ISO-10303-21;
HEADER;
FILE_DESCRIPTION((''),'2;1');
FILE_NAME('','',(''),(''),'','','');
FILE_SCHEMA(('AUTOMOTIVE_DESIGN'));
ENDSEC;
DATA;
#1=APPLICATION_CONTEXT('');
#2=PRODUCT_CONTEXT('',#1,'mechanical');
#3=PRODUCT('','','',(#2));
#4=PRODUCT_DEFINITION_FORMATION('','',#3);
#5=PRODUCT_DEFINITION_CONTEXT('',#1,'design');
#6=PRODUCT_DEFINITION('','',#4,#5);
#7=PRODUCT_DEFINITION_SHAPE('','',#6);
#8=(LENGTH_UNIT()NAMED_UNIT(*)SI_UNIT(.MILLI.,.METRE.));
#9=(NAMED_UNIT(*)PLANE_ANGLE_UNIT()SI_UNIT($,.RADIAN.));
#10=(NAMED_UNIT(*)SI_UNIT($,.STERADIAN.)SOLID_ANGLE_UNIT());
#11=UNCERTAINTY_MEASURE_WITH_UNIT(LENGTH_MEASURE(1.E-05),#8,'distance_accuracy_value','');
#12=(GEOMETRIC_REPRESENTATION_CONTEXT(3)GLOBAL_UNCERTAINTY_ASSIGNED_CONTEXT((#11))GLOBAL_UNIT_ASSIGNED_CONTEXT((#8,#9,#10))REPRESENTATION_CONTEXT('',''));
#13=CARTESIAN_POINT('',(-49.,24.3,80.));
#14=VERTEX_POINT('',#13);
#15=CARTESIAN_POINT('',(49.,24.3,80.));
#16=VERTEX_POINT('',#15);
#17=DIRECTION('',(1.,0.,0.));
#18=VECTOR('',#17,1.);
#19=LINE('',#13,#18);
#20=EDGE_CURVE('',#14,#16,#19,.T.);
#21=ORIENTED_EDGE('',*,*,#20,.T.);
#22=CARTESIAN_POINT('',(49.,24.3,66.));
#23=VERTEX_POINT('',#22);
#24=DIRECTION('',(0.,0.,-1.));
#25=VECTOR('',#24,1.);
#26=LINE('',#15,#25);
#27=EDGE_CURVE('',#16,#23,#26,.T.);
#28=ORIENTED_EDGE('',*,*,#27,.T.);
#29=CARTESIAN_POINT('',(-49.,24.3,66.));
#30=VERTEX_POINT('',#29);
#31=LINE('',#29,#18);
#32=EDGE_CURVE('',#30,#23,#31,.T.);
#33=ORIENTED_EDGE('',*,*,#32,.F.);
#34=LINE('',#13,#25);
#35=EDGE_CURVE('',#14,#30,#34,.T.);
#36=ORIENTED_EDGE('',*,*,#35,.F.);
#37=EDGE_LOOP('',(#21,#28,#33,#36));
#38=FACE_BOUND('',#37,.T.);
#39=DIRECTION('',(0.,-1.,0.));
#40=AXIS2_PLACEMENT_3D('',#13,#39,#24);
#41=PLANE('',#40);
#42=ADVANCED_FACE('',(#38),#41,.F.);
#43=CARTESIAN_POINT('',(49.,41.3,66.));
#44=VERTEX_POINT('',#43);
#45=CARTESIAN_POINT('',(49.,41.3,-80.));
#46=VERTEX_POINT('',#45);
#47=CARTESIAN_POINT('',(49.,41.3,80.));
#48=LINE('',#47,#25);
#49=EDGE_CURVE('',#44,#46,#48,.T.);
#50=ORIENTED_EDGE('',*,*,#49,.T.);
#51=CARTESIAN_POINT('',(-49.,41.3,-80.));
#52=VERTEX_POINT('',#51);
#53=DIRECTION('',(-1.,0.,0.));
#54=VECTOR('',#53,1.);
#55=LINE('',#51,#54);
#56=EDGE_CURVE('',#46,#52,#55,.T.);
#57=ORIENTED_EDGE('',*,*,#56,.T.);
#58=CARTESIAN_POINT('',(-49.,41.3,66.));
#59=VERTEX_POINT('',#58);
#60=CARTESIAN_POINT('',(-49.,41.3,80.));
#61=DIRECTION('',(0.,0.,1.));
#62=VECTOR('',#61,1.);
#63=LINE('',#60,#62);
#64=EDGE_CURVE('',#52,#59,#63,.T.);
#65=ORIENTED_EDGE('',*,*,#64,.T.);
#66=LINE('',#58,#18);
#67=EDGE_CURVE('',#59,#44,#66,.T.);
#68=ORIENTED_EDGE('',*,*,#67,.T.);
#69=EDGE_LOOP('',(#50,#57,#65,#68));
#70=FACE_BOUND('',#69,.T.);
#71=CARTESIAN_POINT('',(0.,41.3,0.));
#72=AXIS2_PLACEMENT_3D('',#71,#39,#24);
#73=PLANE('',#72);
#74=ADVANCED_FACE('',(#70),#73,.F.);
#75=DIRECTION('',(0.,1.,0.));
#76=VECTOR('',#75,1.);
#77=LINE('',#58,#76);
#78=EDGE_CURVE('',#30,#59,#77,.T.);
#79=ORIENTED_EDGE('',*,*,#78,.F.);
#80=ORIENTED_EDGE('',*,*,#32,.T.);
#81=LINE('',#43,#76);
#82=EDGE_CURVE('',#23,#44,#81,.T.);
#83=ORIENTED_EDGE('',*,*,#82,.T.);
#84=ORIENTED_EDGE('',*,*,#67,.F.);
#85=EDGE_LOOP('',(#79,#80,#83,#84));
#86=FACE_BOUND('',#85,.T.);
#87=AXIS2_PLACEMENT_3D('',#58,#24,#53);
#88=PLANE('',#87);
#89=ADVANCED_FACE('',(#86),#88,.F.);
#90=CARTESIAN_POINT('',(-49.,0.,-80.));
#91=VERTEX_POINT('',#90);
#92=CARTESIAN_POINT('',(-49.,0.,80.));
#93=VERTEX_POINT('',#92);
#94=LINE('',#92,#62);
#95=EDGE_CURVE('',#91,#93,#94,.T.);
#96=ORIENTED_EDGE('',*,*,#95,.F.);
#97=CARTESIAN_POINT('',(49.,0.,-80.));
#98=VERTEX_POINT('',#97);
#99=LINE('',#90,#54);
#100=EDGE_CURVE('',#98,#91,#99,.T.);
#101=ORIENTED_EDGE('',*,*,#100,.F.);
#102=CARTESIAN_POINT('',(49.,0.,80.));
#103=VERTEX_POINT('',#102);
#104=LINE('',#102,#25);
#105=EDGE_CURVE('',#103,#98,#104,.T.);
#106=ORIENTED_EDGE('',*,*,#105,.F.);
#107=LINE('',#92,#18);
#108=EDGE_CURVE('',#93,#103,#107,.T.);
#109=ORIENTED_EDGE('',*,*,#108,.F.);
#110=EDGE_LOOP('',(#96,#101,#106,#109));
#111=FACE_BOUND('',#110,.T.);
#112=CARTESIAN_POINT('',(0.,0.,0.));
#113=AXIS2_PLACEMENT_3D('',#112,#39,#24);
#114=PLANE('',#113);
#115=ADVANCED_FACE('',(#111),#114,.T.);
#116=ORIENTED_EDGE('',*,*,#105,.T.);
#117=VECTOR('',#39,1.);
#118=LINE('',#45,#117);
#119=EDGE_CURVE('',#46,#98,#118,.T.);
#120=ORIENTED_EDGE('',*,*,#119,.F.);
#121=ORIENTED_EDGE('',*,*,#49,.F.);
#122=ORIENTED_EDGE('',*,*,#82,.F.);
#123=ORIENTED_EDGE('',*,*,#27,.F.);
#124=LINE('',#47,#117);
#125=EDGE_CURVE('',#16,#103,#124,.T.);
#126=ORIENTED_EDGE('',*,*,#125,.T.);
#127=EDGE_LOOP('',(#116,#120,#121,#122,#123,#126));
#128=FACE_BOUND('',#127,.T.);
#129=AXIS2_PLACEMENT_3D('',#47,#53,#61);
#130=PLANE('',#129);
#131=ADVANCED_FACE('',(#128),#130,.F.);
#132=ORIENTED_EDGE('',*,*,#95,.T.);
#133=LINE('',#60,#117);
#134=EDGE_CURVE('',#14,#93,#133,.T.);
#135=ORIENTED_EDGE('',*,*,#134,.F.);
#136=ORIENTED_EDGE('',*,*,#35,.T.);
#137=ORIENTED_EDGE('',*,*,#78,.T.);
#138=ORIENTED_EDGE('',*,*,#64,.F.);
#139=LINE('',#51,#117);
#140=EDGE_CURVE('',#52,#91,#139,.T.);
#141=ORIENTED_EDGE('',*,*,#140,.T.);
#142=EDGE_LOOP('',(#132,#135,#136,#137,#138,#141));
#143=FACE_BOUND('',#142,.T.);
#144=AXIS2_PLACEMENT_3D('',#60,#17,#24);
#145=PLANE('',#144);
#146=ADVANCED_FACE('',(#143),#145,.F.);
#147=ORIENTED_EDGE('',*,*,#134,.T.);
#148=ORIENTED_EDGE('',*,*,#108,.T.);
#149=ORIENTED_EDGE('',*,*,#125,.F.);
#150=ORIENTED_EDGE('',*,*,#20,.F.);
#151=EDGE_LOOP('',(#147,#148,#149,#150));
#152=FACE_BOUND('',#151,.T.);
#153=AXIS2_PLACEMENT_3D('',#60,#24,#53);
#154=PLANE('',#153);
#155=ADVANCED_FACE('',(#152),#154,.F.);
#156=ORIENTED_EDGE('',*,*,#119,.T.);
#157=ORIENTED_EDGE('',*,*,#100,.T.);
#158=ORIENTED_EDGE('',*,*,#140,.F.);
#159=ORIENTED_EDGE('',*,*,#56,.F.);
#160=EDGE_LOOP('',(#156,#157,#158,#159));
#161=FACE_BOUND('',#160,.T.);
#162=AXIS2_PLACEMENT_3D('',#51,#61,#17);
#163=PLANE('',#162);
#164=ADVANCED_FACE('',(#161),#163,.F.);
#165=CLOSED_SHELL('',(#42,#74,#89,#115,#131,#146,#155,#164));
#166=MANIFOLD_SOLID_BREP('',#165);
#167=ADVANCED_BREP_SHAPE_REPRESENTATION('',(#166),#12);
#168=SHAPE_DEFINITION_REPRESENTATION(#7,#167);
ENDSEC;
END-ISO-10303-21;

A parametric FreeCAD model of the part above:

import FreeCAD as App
import Part
import Sketcher
from FreeCAD import Vector
Q = App.Units.Quantity

doc = App.newDocument("Part")
params = doc.addObject("Spreadsheet::Sheet", "Params")
for row, (alias, value) in enumerate([
    ("sketch1_width", "98 mm"),
    ("sketch1_height", "160 mm"),
    ("pad1_length", "41.3 mm"),
    ("sketch2_width", "17 mm"),
    ("sketch2_height", "14 mm"),
], start=1):
    params.set(f"A{row}", alias)
    params.set(f"B{row}", "=" + value)
    params.setAlias(f"B{row}", alias)

body = doc.addObject("PartDesign::Body", "Body")

sketch1 = doc.addObject("Sketcher::SketchObject", "Sketch")
body.addObject(sketch1)
sketch1.AttachmentSupport = (doc.XZ_Plane, [""])
sketch1.MapMode = "FlatFace"
sketch1.addGeometry([
    Part.LineSegment(Vector(-49, -80, 0), Vector(-49, 80, 0)),
    Part.LineSegment(Vector(-49, 80, 0), Vector(49, 80, 0)),
    Part.LineSegment(Vector(49, 80, 0), Vector(49, -80, 0)),
    Part.LineSegment(Vector(49, -80, 0), Vector(-49, -80, 0)),
], False)
sketch1.addConstraint([
    Sketcher.Constraint("Coincident", 0, 2, 1, 1),
    Sketcher.Constraint("Coincident", 1, 2, 2, 1),
    Sketcher.Constraint("Coincident", 2, 2, 3, 1),
    Sketcher.Constraint("Coincident", 3, 2, 0, 1),
    Sketcher.Constraint("Vertical", 0),
    Sketcher.Constraint("Horizontal", 1),
    Sketcher.Constraint("Vertical", 2),
    Sketcher.Constraint("Horizontal", 3),
    Sketcher.Constraint("Symmetric", 0, 2, 2, 2, -1, 1),
    Sketcher.Constraint("DistanceX", 1, 1, 1, 2, Q("98 mm")),
    Sketcher.Constraint("DistanceY", 0, 1, 0, 2, Q("160 mm")),
])
sketch1.setExpression("Constraints[9]", "Params.sketch1_width")
sketch1.setExpression("Constraints[10]", "Params.sketch1_height")
pad1 = doc.addObject("PartDesign::Pad", "Pad")
body.addObject(pad1)
pad1.Profile = sketch1
pad1.setExpression("Length", "Params.pad1_length")
pad1.Reversed = True

sketch2 = doc.addObject("Sketcher::SketchObject", "Sketch001")
body.addObject(sketch2)
sketch2.AttachmentSupport = (doc.YZ_Plane, [""])
sketch2.MapMode = "FlatFace"
sketch2.AttachmentOffset = App.Placement(Vector(0, 0, 49), App.Rotation())
sketch2.addGeometry([
    Part.LineSegment(Vector(41.3, 80, 0), Vector(24.3, 80, 0)),
    Part.LineSegment(Vector(24.3, 80, 0), Vector(24.3, 66, 0)),
    Part.LineSegment(Vector(24.3, 66, 0), Vector(41.3, 66, 0)),
    Part.LineSegment(Vector(41.3, 66, 0), Vector(41.3, 80, 0)),
], False)
sketch2.addConstraint([
    Sketcher.Constraint("Coincident", 0, 2, 1, 1),
    Sketcher.Constraint("Coincident", 1, 2, 2, 1),
    Sketcher.Constraint("Coincident", 2, 2, 3, 1),
    Sketcher.Constraint("Coincident", 3, 2, 0, 1),
    Sketcher.Constraint("Horizontal", 0),
    Sketcher.Constraint("Vertical", 1),
    Sketcher.Constraint("Horizontal", 2),
    Sketcher.Constraint("Vertical", 3),
    Sketcher.Constraint("DistanceX", 0, 2, 0, 1, Q("17 mm")),
    Sketcher.Constraint("DistanceY", 1, 2, 1, 1, Q("14 mm")),
    Sketcher.Constraint("DistanceY", -1, 1, 0, 2, Q("80 mm")),
    Sketcher.Constraint("DistanceX", -1, 1, 0, 2, Q("24.3 mm")),
])
sketch2.setExpression("Constraints[8]", "Params.sketch2_width")
sketch2.setExpression("Constraints[9]", "Params.sketch2_height")
pocket1 = doc.addObject("PartDesign::Pocket", "Pocket")
body.addObject(pocket1)
pocket1.Profile = sketch2
pocket1.Type = "ThroughAll"

doc.recompute()
